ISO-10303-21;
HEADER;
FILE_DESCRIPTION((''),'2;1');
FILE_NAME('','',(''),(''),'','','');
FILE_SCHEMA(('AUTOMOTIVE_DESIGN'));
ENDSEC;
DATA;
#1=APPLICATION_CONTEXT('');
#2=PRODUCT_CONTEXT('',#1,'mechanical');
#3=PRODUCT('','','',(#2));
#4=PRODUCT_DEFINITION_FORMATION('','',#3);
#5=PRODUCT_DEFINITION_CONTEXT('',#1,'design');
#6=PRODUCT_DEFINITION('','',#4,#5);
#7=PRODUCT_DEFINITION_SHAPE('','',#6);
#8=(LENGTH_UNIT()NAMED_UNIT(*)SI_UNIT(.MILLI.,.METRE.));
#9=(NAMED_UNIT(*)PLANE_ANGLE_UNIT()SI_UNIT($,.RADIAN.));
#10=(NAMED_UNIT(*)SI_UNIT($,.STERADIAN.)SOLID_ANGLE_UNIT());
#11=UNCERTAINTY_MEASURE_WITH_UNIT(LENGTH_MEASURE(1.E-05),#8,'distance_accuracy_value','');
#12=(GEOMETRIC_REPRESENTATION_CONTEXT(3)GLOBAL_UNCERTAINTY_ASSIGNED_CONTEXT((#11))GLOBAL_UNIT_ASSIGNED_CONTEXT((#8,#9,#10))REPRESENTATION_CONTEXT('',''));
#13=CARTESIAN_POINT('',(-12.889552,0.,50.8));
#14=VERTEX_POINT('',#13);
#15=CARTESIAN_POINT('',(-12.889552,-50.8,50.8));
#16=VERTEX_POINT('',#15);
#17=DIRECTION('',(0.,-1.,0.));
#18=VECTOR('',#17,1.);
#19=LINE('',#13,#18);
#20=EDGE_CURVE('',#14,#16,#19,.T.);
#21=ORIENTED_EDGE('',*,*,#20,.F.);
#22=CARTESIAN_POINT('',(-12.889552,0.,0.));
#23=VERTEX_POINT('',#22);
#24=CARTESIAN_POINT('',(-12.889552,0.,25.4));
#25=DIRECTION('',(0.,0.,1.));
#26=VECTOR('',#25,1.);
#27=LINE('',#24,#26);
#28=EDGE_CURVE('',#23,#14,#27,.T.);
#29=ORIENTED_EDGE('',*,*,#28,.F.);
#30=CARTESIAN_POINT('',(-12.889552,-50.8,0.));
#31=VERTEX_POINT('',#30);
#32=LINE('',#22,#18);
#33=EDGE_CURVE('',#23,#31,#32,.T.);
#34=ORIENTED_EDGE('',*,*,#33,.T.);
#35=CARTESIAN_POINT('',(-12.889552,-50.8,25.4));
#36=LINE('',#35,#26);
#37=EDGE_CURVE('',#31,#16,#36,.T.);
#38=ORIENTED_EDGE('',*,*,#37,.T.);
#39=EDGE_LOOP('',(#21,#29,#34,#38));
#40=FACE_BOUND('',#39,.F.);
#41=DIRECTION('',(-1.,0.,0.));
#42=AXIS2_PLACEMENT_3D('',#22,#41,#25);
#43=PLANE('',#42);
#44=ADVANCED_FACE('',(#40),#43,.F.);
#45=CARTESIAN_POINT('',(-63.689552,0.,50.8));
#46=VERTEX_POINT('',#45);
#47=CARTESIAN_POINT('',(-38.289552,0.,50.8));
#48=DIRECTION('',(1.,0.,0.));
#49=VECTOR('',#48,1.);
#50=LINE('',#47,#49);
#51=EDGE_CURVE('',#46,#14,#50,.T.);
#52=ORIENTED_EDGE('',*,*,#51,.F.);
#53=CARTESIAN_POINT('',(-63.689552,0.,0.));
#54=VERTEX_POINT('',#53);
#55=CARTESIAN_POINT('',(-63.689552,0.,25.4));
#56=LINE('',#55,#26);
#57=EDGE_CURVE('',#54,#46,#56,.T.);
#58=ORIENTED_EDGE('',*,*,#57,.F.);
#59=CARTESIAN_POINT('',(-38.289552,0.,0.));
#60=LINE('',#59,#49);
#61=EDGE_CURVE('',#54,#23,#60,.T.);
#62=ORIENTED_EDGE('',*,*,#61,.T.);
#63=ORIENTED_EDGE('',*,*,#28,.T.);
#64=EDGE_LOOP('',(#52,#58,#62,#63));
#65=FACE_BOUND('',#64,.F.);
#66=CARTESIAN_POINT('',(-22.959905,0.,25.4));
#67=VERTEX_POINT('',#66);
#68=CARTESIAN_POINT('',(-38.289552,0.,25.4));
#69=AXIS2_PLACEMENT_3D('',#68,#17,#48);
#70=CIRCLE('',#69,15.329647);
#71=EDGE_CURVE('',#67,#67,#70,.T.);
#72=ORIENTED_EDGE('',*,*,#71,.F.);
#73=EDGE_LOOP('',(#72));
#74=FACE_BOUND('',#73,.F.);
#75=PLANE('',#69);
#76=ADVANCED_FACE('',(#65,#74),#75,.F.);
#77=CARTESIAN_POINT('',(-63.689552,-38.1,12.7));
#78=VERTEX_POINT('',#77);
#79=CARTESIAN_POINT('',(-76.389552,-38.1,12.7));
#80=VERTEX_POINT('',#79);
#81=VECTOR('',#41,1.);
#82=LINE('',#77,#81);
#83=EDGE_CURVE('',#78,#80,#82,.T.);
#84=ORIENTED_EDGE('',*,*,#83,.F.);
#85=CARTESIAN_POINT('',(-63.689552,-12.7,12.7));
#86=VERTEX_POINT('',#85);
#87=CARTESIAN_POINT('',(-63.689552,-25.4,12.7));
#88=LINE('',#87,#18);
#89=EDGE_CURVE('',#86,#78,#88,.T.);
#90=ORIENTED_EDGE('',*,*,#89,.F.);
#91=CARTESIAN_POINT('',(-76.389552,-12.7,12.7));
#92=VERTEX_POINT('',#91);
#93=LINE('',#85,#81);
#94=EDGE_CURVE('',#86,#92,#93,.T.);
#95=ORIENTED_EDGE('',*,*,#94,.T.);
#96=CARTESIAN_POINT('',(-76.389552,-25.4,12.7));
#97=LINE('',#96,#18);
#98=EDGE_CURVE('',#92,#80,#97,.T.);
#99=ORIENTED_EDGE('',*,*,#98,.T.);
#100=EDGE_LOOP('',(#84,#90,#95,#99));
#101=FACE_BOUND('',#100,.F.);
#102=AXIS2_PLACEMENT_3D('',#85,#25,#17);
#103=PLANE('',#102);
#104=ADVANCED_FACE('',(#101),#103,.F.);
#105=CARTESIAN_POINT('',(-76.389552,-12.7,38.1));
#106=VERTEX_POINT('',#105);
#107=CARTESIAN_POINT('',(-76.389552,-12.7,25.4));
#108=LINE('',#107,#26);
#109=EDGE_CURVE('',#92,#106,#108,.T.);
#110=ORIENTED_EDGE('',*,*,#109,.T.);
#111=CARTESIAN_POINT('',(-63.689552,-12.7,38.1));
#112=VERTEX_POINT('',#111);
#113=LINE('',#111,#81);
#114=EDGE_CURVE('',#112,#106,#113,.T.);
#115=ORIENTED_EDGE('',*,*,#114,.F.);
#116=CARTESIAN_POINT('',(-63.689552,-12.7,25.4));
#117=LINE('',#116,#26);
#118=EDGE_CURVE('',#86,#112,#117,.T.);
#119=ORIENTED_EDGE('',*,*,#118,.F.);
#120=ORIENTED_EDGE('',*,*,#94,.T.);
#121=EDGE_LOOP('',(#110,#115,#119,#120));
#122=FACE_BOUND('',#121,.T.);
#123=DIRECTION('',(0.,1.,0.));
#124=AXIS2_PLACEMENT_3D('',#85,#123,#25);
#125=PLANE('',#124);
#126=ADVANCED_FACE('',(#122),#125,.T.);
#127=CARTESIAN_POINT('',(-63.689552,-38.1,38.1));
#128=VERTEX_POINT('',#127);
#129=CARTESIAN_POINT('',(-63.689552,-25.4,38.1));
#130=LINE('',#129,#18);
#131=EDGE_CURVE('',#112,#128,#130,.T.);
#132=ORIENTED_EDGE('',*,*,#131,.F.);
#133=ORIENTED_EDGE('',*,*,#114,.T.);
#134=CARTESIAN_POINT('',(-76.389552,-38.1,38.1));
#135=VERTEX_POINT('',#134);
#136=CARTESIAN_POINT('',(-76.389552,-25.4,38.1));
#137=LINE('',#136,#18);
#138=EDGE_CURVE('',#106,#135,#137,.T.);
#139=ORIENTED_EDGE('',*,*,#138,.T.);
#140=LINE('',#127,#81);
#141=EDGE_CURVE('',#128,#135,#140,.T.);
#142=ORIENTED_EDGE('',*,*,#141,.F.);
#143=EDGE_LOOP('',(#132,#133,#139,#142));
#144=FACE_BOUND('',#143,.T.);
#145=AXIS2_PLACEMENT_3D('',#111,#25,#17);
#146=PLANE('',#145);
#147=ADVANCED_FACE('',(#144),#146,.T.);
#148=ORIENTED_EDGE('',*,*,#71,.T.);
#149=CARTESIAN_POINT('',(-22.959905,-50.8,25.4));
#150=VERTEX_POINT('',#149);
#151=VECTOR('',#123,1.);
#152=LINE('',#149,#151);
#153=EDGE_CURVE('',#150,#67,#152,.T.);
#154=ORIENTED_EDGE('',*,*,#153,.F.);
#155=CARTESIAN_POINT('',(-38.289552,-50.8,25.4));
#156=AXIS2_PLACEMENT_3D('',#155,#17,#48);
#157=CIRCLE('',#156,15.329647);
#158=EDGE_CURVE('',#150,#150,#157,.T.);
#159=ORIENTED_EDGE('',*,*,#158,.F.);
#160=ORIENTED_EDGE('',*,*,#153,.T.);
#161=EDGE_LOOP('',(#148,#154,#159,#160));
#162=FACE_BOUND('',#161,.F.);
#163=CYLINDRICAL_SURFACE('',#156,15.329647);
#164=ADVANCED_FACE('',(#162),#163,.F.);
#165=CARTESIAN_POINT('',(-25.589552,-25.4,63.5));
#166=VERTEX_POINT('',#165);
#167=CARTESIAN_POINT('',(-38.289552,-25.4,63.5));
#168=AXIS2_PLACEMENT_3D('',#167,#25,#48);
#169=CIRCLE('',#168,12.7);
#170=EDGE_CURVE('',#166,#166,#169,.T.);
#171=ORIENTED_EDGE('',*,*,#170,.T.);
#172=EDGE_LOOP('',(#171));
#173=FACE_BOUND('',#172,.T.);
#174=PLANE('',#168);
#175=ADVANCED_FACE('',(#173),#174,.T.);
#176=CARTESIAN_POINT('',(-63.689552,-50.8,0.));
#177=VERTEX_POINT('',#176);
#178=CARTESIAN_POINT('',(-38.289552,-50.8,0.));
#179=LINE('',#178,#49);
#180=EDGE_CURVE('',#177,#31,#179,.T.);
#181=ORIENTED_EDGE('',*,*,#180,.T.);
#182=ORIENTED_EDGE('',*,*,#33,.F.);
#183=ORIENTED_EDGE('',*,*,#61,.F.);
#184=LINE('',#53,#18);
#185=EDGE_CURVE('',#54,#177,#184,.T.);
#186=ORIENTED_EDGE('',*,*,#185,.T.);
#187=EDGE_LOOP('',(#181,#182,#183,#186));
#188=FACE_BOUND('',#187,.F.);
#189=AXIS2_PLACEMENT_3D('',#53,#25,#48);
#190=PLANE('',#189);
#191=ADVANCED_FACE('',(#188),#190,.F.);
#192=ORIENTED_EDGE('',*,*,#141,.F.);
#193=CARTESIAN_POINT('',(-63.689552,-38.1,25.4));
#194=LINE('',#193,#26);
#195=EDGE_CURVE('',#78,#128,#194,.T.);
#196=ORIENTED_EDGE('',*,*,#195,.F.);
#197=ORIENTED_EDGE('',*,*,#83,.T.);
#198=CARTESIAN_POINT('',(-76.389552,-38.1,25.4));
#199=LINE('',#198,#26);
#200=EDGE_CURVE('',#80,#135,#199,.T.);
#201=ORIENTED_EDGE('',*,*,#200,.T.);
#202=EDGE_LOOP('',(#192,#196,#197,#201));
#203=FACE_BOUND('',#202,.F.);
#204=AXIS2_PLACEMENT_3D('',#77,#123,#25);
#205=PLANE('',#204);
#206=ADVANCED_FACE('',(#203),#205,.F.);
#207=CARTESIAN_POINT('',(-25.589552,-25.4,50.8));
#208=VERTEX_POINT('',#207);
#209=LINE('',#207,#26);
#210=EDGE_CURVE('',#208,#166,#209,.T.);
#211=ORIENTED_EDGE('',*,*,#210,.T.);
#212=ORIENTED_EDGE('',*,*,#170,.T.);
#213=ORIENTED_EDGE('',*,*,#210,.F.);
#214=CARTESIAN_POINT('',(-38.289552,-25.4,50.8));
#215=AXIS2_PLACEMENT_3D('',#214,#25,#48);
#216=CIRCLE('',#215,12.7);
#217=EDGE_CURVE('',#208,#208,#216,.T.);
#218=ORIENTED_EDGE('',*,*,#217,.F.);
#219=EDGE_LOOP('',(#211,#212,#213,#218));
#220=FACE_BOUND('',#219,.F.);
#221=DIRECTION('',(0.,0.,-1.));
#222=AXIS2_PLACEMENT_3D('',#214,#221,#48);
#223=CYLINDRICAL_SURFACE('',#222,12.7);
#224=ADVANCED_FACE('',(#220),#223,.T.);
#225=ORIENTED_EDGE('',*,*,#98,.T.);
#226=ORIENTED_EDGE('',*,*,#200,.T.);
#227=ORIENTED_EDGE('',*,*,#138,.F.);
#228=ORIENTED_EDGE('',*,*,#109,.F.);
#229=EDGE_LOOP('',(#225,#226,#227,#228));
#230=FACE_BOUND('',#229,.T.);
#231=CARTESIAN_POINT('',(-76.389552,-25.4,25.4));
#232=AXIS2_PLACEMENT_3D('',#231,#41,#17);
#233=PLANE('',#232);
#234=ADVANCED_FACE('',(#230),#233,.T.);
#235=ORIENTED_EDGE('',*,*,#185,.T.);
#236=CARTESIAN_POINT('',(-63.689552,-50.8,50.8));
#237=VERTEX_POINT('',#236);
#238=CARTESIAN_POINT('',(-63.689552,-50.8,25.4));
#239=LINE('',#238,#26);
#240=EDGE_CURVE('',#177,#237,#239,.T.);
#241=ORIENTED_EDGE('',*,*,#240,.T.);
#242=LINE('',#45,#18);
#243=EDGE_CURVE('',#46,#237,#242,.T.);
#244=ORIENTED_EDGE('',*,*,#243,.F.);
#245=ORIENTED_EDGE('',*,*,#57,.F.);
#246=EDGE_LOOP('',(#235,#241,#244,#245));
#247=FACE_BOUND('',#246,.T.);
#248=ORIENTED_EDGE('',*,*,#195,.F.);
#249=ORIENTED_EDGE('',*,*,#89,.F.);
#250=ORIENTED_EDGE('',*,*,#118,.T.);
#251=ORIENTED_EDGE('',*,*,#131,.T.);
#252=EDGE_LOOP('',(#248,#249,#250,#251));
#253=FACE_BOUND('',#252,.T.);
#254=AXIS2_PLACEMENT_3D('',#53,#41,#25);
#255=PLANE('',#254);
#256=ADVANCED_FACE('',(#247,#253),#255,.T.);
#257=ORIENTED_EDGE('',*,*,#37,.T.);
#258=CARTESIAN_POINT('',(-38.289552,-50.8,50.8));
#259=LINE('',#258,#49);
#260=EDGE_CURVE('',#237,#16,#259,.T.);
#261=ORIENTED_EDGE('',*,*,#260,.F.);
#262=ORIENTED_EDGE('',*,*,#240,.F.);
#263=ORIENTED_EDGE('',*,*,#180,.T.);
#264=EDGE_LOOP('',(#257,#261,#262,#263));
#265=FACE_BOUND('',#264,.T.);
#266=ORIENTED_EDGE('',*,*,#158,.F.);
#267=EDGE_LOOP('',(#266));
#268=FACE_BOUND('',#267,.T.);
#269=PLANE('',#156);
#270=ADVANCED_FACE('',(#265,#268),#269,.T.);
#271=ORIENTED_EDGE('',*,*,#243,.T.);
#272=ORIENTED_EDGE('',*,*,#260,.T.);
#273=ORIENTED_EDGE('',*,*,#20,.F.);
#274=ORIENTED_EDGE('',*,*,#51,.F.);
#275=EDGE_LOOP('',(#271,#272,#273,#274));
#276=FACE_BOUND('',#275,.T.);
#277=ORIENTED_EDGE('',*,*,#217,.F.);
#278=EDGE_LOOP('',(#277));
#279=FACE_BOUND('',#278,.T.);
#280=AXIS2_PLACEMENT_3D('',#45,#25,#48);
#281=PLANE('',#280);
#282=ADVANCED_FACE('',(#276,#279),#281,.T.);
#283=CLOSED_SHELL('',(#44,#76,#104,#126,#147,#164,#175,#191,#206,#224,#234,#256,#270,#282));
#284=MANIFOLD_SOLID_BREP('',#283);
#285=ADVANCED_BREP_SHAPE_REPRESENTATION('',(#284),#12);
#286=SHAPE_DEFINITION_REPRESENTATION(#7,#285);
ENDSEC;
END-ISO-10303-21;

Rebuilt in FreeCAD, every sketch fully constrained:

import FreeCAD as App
import Part
import Sketcher
from FreeCAD import Vector
Q = App.Units.Quantity


def add_polygon(sketch, points):
    """Adds a closed chain of lines whose ends are joined by coincident constraints."""
    first, n = sketch.GeometryCount, len(points)
    for a, b in zip(points, points[1:] + points[:1]):
        sketch.addGeometry(Part.LineSegment(App.Vector(*a, 0), App.Vector(*b, 0)), False)
    for i in range(n):
        sketch.addConstraint(Sketcher.Constraint("Coincident", first + i, 2, first + (i + 1) % n, 1))

doc = App.newDocument("Part")
body = doc.addObject("PartDesign::Body", "Body")

# Sketch on XZ plane
sketch1 = body.newObject("Sketcher::SketchObject", "Sketch")
sketch1.AttachmentSupport = (doc.getObject("XZ_Plane"), [""])
sketch1.MapMode = "FlatFace"
add_polygon(sketch1, [(-63.689552, 50.8), (-63.689552, 0), (-12.889552, 0), (-12.889552, 50.8)])  # lines 0-3
sketch1.addConstraint(Sketcher.Constraint("Vertical", 0))
sketch1.addConstraint(Sketcher.Constraint("Horizontal", 1))
sketch1.addConstraint(Sketcher.Constraint("Vertical", 2))
sketch1.addConstraint(Sketcher.Constraint("Horizontal", 3))
sketch1.addConstraint(Sketcher.Constraint("PointOnObject", 0, 2, -1))
sketch1.addConstraint(Sketcher.Constraint("Equal", 3, 0))
sketch1.addConstraint(Sketcher.Constraint("DistanceX", 1, 1, 1, 2, Q("2 in")))
sketch1.addConstraint(Sketcher.Constraint("DistanceX", 0, 2, -1, 1, Q("63.689552 mm")))
pad1 = body.newObject("PartDesign::Pad", "Pad")
pad1.Profile = sketch1
pad1.Length = Q("2 in")

# Sketch on XZ plane
sketch2 = body.newObject("Sketcher::SketchObject", "Sketch001")
sketch2.AttachmentSupport = (doc.getObject("XZ_Plane"), [""])
sketch2.MapMode = "FlatFace"
sketch2.AttachmentOffset = App.Placement(Vector(0, 0, 2 * 25.4), App.Rotation())
sketch2.addGeometry(Part.Circle(Vector(-38.289552, 25.4, 0), Vector(0, 0, 1), 15.329647), False)
sketch2.addConstraint(Sketcher.Constraint("DistanceY", -1, 1, 0, 3, Q("1 in")))
sketch2.addConstraint(Sketcher.Constraint("Diameter", 0, Q("30.659294 mm")))
sketch2.addConstraint(Sketcher.Constraint("DistanceX", 0, 3, -1, 1, Q("38.289552 mm")))
pocket1 = body.newObject("PartDesign::Pocket", "Pocket")
pocket1.Profile = sketch2
pocket1.Length = Q("2 in")

# Sketch on XY plane
sketch3 = body.newObject("Sketcher::SketchObject", "Sketch002")
sketch3.AttachmentSupport = (doc.getObject("XY_Plane"), [""])
sketch3.MapMode = "FlatFace"
sketch3.AttachmentOffset = App.Placement(Vector(0, 0, 2 * 25.4), App.Rotation())
sketch3.addGeometry(Part.Circle(Vector(-38.289552, -25.4, 0), Vector(0, 0, 1), 12.7), False)
sketch3.addConstraint(Sketcher.Constraint("Diameter", 0, Q("1 in")))
sketch3.addConstraint(Sketcher.Constraint("DistanceY", 0, 3, -1, 1, Q("1 in")))
sketch3.addConstraint(Sketcher.Constraint("DistanceX", 0, 3, -1, 1, Q("38.289552 mm")))
pad2 = body.newObject("PartDesign::Pad", "Pad001")
pad2.Profile = sketch3
pad2.Length = Q("0.5 in")

# Sketch on YZ plane
sketch4 = body.newObject("Sketcher::SketchObject", "Sketch003")
sketch4.AttachmentSupport = (doc.getObject("YZ_Plane"), [""])
sketch4.MapMode = "FlatFace"
sketch4.AttachmentOffset = App.Placement(Vector(0, 0, -63.689552), App.Rotation())
add_polygon(sketch4, [(-12.7, 38.1), (-12.7, 12.7), (-38.1, 12.7), (-38.1, 38.1)])  # lines 0-3
sketch4.addConstraint(Sketcher.Constraint("Vertical", 0))
sketch4.addConstraint(Sketcher.Constraint("Horizontal", 1))
sketch4.addConstraint(Sketcher.Constraint("Vertical", 2))
sketch4.addConstraint(Sketcher.Constraint("Horizontal", 3))
sketch4.addConstraint(Sketcher.Constraint("Equal", 3, 0))
sketch4.addConstraint(Sketcher.Constraint("DistanceX", 1, 2, 1, 1, Q("1 in")))
sketch4.addConstraint(Sketcher.Constraint("DistanceX", 0, 2, -1, 1, Q("0.5 in")))
sketch4.addConstraint(Sketcher.Constraint("DistanceY", -1, 1, 0, 2, Q("0.5 in")))
pad3 = body.newObject("PartDesign::Pad", "Pad002")
pad3.Profile = sketch4
pad3.Length = Q("0.5 in")
pad3.Reversed = True

doc.recompute()
